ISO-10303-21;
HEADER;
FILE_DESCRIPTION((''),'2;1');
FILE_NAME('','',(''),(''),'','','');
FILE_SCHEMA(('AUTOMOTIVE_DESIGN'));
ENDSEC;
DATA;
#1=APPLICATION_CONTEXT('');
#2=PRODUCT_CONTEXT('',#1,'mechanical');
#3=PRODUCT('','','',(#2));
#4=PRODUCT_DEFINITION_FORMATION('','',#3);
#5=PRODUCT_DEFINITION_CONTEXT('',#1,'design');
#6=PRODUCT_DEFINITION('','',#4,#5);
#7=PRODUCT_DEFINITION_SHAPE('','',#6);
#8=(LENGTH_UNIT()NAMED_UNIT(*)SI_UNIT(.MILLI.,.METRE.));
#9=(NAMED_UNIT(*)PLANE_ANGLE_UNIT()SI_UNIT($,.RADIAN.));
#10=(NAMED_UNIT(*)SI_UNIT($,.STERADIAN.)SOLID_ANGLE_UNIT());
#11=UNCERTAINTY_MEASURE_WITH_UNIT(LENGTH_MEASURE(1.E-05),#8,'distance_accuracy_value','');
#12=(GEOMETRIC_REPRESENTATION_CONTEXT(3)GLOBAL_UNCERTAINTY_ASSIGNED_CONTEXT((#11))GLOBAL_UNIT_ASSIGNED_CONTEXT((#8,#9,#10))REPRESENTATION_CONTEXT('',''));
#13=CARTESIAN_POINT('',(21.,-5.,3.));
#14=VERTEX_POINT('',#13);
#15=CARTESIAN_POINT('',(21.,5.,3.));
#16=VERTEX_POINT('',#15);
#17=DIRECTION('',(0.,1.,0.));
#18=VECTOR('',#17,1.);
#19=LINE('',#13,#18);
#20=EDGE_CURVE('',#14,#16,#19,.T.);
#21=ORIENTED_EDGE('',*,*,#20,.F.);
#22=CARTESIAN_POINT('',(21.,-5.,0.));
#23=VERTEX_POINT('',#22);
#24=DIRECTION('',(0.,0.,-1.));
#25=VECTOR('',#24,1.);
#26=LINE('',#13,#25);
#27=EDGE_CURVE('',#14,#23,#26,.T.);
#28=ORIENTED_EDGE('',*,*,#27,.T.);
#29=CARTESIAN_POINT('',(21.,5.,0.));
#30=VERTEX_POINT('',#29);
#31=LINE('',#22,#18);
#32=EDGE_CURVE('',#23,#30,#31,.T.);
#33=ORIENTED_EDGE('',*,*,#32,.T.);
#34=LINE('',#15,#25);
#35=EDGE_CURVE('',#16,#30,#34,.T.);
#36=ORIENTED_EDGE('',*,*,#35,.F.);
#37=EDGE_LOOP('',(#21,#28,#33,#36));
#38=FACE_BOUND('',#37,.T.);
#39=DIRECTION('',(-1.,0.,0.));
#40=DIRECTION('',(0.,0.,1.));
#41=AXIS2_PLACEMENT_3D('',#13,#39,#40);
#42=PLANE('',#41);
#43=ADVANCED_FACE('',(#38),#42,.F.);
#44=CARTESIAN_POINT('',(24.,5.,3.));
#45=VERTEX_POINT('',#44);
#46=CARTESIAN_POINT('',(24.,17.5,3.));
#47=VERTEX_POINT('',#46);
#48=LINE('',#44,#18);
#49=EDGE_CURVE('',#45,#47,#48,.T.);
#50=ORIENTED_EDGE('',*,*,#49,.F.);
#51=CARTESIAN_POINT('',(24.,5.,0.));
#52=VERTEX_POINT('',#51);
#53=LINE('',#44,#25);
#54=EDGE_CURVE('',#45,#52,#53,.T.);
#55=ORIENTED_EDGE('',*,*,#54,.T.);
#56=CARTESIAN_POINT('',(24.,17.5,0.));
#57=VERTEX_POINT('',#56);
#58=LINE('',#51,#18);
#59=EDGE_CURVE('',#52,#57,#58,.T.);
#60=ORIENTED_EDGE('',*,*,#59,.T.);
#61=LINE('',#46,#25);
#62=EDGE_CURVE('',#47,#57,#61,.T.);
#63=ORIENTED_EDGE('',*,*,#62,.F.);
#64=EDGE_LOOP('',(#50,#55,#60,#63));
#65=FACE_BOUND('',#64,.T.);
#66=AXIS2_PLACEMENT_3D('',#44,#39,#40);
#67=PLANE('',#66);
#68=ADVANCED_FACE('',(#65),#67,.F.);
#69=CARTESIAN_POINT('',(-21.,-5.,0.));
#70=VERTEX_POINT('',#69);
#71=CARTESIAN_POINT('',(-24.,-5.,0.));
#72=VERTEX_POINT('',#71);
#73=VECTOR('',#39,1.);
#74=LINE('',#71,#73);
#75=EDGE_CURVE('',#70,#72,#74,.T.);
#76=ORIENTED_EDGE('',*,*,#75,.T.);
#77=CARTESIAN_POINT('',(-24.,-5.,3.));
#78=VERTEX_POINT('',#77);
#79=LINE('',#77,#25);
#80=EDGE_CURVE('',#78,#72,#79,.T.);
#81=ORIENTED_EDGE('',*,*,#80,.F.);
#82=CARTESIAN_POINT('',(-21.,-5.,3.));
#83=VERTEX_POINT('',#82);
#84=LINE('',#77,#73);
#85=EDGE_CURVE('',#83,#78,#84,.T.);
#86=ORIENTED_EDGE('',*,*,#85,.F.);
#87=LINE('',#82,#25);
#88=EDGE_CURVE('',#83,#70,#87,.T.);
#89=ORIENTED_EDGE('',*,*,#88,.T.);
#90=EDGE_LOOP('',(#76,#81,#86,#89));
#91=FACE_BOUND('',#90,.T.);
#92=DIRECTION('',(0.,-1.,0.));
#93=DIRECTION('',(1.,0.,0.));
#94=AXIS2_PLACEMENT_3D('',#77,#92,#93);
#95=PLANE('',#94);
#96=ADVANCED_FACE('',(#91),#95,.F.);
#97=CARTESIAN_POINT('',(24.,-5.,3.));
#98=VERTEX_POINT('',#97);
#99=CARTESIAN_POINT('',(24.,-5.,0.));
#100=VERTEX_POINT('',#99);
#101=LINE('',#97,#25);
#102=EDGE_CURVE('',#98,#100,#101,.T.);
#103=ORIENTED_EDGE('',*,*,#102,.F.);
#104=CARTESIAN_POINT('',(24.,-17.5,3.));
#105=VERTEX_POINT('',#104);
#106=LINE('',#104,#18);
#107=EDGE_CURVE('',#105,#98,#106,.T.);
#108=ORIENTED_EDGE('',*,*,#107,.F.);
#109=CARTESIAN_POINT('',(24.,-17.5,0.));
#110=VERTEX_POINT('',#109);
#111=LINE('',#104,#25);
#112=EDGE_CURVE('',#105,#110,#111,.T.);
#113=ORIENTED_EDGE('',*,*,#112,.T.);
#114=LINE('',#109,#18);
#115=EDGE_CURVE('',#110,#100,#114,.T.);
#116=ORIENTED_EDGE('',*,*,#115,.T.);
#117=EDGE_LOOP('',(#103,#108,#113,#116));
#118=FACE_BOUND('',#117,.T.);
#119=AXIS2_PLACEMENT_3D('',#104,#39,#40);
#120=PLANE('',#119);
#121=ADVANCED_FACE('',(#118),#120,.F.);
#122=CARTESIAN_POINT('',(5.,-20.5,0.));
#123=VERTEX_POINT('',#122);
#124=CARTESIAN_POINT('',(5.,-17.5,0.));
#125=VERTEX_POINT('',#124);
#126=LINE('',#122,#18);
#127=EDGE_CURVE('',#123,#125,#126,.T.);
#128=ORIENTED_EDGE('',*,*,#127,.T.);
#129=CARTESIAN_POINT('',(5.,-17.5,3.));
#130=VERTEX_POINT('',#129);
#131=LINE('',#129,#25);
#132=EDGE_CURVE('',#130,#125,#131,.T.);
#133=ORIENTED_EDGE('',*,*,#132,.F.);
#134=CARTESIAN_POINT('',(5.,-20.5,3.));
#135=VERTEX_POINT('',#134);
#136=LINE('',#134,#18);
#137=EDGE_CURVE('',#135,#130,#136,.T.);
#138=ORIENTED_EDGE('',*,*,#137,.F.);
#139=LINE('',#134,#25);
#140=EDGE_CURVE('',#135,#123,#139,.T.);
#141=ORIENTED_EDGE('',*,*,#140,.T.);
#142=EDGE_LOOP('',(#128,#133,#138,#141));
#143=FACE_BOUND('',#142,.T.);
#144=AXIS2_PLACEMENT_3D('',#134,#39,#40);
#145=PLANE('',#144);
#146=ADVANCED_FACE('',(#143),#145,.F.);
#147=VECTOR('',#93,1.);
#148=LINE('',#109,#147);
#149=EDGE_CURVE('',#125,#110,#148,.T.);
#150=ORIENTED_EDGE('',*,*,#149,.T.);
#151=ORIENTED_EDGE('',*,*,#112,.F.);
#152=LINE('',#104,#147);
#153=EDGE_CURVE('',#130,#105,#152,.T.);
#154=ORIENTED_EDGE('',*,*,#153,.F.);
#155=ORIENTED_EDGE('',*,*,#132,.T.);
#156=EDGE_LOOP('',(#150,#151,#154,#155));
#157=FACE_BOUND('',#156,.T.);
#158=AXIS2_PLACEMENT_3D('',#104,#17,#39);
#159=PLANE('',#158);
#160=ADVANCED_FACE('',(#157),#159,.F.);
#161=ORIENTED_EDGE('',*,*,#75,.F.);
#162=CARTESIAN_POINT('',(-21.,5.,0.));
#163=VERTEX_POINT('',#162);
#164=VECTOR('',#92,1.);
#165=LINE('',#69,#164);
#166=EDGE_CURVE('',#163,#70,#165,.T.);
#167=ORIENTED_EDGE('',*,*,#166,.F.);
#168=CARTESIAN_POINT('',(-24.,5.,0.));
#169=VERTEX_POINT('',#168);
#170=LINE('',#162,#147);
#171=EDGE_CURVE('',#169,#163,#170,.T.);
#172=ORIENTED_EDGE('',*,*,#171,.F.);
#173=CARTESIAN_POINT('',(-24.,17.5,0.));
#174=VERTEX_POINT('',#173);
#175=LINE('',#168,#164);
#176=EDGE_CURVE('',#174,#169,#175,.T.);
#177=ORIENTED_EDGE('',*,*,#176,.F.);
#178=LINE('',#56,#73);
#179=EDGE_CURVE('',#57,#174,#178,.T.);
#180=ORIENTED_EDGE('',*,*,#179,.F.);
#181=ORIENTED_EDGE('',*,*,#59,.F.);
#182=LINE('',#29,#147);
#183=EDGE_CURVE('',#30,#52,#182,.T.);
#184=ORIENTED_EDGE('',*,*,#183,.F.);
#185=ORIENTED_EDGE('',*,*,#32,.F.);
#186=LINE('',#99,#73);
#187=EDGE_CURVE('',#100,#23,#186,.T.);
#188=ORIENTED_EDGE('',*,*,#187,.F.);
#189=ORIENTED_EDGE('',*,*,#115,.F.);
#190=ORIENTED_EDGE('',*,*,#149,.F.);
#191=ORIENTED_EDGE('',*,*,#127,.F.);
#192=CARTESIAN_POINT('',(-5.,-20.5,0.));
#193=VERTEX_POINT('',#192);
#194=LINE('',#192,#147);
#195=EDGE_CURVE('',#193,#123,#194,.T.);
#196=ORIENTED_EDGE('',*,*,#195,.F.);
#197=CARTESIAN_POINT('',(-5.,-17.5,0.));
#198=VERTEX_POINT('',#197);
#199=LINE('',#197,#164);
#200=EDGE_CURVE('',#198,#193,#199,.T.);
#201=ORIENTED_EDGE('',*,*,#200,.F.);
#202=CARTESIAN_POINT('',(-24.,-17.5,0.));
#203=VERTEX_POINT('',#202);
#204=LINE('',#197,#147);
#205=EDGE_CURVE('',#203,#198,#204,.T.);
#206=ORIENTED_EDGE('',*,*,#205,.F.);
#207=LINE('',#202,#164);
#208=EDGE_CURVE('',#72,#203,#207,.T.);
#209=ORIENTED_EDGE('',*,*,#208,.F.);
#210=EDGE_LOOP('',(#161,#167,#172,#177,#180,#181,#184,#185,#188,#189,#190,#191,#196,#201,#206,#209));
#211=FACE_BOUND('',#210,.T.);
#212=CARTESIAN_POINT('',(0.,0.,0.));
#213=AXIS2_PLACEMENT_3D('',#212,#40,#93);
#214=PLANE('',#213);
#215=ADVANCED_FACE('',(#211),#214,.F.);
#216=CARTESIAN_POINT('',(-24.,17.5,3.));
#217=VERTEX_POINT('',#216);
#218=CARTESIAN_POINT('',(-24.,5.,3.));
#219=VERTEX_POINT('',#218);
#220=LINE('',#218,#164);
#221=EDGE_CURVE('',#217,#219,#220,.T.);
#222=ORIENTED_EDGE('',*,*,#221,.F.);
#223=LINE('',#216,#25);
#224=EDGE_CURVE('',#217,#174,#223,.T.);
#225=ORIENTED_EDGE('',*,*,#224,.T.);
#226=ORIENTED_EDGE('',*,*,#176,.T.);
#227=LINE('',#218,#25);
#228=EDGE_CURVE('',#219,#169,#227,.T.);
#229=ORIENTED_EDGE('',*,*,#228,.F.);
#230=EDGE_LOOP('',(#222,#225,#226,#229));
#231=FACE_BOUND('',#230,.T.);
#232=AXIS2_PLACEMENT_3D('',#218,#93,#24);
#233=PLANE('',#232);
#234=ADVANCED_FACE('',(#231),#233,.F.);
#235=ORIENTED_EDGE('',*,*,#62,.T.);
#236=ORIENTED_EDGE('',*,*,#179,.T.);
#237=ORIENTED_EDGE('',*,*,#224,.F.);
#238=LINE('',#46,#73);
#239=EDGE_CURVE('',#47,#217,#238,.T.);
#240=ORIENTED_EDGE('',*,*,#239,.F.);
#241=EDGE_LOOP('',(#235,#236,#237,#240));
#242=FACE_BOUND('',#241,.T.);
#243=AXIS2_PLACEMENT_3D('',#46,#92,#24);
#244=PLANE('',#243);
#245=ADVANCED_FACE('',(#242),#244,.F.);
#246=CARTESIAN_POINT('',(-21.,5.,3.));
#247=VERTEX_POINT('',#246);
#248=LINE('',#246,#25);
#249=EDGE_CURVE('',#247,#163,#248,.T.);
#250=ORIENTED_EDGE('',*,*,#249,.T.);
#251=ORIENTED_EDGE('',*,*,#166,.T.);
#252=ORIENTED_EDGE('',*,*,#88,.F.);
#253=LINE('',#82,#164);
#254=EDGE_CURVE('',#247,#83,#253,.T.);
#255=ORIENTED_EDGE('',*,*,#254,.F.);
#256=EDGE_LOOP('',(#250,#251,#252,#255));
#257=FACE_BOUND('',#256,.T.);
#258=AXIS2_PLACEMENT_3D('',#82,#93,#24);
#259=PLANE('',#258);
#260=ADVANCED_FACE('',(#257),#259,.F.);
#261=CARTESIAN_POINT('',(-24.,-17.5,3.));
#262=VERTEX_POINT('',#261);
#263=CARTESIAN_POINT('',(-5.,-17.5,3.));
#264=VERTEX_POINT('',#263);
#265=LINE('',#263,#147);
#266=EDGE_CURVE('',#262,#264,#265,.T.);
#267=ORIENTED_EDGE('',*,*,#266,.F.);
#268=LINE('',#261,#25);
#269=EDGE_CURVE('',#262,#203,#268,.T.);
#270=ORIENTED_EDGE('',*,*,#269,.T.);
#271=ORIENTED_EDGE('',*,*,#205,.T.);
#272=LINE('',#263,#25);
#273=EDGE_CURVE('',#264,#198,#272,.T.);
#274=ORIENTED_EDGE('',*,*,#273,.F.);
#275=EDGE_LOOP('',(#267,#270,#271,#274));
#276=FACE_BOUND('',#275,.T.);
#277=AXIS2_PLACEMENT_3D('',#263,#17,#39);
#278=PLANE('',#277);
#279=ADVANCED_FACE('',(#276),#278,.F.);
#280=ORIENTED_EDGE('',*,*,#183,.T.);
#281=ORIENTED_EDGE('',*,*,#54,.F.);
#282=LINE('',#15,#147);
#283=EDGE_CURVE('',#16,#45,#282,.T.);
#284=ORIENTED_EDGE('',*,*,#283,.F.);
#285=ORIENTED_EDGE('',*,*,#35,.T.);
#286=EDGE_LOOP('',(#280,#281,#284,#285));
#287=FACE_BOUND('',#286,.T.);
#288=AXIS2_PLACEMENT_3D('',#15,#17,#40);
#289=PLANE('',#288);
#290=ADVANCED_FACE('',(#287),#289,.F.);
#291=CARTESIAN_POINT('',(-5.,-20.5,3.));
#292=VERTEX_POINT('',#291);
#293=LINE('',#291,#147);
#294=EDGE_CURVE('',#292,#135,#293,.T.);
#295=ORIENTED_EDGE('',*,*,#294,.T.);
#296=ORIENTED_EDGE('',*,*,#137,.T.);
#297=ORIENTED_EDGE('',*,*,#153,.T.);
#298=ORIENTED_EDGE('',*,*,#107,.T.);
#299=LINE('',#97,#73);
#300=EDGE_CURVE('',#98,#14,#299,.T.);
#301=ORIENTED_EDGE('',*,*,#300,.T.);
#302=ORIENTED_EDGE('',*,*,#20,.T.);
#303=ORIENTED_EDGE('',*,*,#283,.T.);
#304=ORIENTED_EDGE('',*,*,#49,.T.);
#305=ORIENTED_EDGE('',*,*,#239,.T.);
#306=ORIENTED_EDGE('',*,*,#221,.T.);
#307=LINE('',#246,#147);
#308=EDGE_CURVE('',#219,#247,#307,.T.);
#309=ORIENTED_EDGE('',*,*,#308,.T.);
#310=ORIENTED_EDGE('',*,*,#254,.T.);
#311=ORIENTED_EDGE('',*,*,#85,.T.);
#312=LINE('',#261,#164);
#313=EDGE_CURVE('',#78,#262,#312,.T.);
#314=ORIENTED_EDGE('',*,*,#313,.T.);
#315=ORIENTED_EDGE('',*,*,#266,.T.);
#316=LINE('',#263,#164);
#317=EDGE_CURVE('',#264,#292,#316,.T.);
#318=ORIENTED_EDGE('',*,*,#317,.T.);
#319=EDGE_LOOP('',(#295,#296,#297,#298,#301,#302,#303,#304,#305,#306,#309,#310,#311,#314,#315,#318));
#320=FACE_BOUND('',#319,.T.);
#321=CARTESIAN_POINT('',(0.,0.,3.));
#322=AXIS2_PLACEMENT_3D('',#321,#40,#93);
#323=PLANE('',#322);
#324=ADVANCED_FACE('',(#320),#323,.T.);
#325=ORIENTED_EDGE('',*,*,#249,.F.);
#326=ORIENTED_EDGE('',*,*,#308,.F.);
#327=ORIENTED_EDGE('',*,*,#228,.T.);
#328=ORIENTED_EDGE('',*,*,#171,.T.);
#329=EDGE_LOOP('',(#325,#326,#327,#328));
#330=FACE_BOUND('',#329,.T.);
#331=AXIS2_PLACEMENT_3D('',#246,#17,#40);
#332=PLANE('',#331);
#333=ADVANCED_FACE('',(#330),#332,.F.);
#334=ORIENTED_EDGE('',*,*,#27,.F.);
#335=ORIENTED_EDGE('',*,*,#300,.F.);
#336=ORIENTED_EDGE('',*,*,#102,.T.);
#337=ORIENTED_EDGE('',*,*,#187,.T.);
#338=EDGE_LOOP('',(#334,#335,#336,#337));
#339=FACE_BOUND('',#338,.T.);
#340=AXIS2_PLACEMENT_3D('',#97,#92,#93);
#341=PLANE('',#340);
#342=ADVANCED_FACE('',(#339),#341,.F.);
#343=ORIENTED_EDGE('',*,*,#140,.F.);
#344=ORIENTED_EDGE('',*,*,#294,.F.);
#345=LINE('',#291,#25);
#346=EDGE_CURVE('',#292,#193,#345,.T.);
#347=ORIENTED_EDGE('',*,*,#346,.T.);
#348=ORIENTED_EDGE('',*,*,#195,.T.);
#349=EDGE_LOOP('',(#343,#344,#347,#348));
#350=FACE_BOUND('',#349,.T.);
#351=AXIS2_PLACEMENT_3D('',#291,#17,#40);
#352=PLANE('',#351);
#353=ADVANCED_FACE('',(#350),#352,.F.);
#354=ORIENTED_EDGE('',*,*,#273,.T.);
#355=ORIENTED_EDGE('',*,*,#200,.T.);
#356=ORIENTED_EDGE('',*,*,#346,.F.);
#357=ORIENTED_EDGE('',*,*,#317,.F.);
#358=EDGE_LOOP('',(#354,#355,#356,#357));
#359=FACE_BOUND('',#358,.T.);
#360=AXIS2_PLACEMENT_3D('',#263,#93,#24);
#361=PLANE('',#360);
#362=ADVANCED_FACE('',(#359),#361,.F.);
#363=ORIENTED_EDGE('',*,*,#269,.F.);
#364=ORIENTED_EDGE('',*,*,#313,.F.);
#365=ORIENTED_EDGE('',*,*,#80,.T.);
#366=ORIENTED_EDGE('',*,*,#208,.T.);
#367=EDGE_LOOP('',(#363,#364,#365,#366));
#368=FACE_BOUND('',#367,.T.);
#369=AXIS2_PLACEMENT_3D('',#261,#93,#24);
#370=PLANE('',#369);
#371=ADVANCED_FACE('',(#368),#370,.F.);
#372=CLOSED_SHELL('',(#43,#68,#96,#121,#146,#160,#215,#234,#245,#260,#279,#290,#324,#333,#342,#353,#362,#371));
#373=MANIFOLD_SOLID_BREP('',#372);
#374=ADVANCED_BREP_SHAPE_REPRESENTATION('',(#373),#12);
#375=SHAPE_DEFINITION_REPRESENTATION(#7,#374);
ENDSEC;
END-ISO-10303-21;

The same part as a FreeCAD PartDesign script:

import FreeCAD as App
import Part
import Sketcher

V = App.Vector
Q = App.Units.Quantity


def add_polygon(sketch, points):
    """Adds a closed chain of lines whose ends are joined by coincident constraints."""
    first, n = sketch.GeometryCount, len(points)
    for a, b in zip(points, points[1:] + points[:1]):
        sketch.addGeometry(Part.LineSegment(App.Vector(*a, 0), App.Vector(*b, 0)), False)
    for i in range(n):
        sketch.addConstraint(Sketcher.Constraint("Coincident", first + i, 2, first + (i + 1) % n, 1))

doc = App.newDocument("Part")
body = doc.addObject("PartDesign::Body", "Body")

# Sketch on XY plane
sketch1 = body.newObject("Sketcher::SketchObject", "Sketch")
sketch1.AttachmentSupport = (doc.getObject("XY_Plane"), [""])
sketch1.MapMode = "FlatFace"
add_polygon(sketch1, [(-5, -17.5), (-5, -20.5), (5, -20.5), (5, -17.5), (24, -17.5), (24, -5), (21, -5), (21, 5), (24, 5), (24, 17.5), (-24, 17.5), (-24, 5), (-21, 5), (-21, -5), (-24, -5), (-24, -17.5)])  # lines 0-15
sketch1.addConstraint(Sketcher.Constraint("Vertical", 0))
sketch1.addConstraint(Sketcher.Constraint("Horizontal", 1))
sketch1.addConstraint(Sketcher.Constraint("Vertical", 2))
sketch1.addConstraint(Sketcher.Constraint("Horizontal", 3))
sketch1.addConstraint(Sketcher.Constraint("Vertical", 4))
sketch1.addConstraint(Sketcher.Constraint("Horizontal", 5))
sketch1.addConstraint(Sketcher.Constraint("Vertical", 6))
sketch1.addConstraint(Sketcher.Constraint("Horizontal", 7))
sketch1.addConstraint(Sketcher.Constraint("Vertical", 8))
sketch1.addConstraint(Sketcher.Constraint("Horizontal", 9))
sketch1.addConstraint(Sketcher.Constraint("Vertical", 10))
sketch1.addConstraint(Sketcher.Constraint("Horizontal", 11))
sketch1.addConstraint(Sketcher.Constraint("Vertical", 12))
sketch1.addConstraint(Sketcher.Constraint("Horizontal", 13))
sketch1.addConstraint(Sketcher.Constraint("Vertical", 14))
sketch1.addConstraint(Sketcher.Constraint("Horizontal", 15))
sketch1.addConstraint(Sketcher.Constraint("Symmetric", 3, 2, 9, 2, -1, 1))
sketch1.addConstraint(Sketcher.Constraint("Symmetric", 5, 2, 11, 2, -1, 1))
sketch1.addConstraint(Sketcher.Constraint("Symmetric", 7, 2, 13, 2, -1, 1))
sketch1.addConstraint(Sketcher.Constraint("Symmetric", 7, 2, 10, 2, -2))
sketch1.addConstraint(Sketcher.Constraint("Symmetric", 2, 2, 15, 2, -2))
sketch1.addConstraint(Sketcher.Constraint("Equal", 13, 0))
sketch1.addConstraint(Sketcher.Constraint("Equal", 1, 6))
sketch1.addConstraint(Sketcher.Constraint("DistanceX", 1, 1, 1, 2, Q("10 mm")))
sketch1.addConstraint(Sketcher.Constraint("DistanceX", 3, 1, 3, 2, Q("19 mm")))
sketch1.addConstraint(Sketcher.Constraint("DistanceX", 5, 2, 5, 1, Q("3 mm")))
sketch1.addConstraint(Sketcher.Constraint("DistanceY", 4, 1, 4, 2, Q("12.5 mm")))
pad1 = body.newObject("PartDesign::Pad", "Pad")
pad1.Profile = sketch1
pad1.Length = 3

doc.recompute()
